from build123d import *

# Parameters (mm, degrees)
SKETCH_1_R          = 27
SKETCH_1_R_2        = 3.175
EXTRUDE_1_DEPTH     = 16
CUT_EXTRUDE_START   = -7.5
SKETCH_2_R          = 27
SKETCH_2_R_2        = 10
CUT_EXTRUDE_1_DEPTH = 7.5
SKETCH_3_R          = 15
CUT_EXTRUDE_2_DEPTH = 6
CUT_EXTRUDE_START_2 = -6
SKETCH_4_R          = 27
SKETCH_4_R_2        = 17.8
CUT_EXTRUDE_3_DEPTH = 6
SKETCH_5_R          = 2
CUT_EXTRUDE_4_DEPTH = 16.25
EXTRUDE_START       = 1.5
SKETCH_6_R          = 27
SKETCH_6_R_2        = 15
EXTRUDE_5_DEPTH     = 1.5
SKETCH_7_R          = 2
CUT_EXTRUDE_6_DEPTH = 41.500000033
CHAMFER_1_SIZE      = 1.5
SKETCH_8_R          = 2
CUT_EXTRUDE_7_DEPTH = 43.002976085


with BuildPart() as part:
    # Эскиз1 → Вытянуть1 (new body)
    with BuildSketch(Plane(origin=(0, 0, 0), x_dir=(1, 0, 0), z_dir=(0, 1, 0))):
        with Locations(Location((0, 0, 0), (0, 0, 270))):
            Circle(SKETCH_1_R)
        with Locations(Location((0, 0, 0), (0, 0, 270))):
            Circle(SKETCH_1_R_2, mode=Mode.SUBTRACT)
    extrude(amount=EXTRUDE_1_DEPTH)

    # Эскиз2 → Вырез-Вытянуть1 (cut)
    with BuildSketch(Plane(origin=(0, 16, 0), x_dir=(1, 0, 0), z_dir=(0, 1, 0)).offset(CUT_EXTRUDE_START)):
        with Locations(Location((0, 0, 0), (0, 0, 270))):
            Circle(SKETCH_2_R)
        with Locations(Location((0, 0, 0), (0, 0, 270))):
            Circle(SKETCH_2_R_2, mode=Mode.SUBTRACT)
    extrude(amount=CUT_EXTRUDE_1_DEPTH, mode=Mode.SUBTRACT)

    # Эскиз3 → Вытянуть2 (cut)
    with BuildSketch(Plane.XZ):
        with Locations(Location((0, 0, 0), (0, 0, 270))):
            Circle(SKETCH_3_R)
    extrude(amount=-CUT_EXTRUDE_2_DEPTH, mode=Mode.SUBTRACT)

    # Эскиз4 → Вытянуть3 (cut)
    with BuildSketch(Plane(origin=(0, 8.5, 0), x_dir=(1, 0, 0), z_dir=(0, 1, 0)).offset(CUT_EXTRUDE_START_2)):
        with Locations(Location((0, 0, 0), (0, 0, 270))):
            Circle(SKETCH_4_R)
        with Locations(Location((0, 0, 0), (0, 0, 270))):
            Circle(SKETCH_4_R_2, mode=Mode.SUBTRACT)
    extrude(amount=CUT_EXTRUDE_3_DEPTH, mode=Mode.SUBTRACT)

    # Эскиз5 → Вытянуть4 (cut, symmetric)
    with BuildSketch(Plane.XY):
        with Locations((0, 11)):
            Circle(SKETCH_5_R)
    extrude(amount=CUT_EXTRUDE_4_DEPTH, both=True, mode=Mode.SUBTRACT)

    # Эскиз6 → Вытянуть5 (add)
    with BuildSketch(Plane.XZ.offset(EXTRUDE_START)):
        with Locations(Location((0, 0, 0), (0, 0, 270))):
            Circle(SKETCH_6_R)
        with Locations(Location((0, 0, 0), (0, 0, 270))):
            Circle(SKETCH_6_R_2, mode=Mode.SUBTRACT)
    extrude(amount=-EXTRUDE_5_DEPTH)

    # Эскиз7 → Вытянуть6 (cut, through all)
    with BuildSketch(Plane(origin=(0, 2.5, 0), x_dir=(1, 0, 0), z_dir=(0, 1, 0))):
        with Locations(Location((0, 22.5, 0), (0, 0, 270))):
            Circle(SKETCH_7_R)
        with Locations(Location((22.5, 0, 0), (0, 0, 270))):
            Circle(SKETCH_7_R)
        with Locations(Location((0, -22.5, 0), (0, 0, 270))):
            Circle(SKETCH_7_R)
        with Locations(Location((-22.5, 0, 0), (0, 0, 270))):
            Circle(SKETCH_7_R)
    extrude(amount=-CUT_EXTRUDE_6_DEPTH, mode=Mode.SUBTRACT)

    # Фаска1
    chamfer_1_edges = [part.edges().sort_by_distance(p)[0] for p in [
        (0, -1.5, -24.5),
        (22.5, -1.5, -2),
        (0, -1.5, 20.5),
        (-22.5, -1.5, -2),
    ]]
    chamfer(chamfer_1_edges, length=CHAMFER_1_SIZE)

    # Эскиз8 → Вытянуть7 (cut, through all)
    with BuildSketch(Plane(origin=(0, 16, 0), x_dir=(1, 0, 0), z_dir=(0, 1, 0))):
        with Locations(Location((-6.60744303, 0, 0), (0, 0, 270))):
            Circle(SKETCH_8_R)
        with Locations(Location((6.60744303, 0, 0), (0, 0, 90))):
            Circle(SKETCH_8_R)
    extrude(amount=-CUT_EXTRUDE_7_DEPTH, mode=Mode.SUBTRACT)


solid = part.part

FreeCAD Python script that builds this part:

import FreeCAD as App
import Part
import Sketcher


def edges_at(feature, points):
    """Names of the edges that pass closest to the given points."""
    edges = feature.Shape.Edges
    near = lambda p: min(range(len(edges)), key=lambda i: edges[i].distToShape(Part.Vertex(*p))[0])
    return sorted({f"Edge{near(p) + 1}" for p in points})

doc = App.newDocument("Part")
body = doc.addObject("PartDesign::Body", "Body")

# Sketch on XZ plane
sketch1 = doc.addObject("Sketcher::SketchObject", "Sketch")
body.addObject(sketch1)
sketch1.AttachmentSupport = (doc.XZ_Plane, [""])
sketch1.MapMode = "FlatFace"
sketch1.addGeometry(Part.Circle(App.Vector(0, 0, 0), App.Vector(0, 0, 1), 27), False)
sketch1.addGeometry(Part.Circle(App.Vector(0, 0, 0), App.Vector(0, 0, 1), 3.175), False)
sketch1.addConstraint(Sketcher.Constraint("Coincident", 0, 3, -1, 1))
sketch1.addConstraint(Sketcher.Constraint("Coincident", 1, 3, -1, 1))
sketch1.addConstraint(Sketcher.Constraint("Diameter", 0, 54.0))
sketch1.addConstraint(Sketcher.Constraint("Diameter", 1, 6.35))
pad1 = doc.addObject("PartDesign::Pad", "Pad")
body.addObject(pad1)
pad1.Profile = sketch1
pad1.Length = 16
pad1.Reversed = True

# Sketch on XZ plane
sketch2 = doc.addObject("Sketcher::SketchObject", "Sketch001")
body.addObject(sketch2)
sketch2.AttachmentSupport = (doc.XZ_Plane, [""])
sketch2.MapMode = "FlatFace"
sketch2.AttachmentOffset = App.Placement(App.Vector(0, 0, -8.5), App.Rotation())
sketch2.addGeometry(Part.Circle(App.Vector(0, 0, 0), App.Vector(0, 0, 1), 27), False)
sketch2.addGeometry(Part.Circle(App.Vector(0, 0, 0), App.Vector(0, 0, 1), 10), False)
sketch2.addConstraint(Sketcher.Constraint("Coincident", 0, 3, -1, 1))
sketch2.addConstraint(Sketcher.Constraint("Coincident", 1, 3, -1, 1))
sketch2.addConstraint(Sketcher.Constraint("Diameter", 0, 54.0))
sketch2.addConstraint(Sketcher.Constraint("Diameter", 1, 20.0))
pocket1 = doc.addObject("PartDesign::Pocket", "Pocket")
body.addObject(pocket1)
pocket1.Profile = sketch2
pocket1.Length = 7.5

# Sketch on XZ plane
sketch3 = doc.addObject("Sketcher::SketchObject", "Sketch002")
body.addObject(sketch3)
sketch3.AttachmentSupport = (doc.XZ_Plane, [""])
sketch3.MapMode = "FlatFace"
sketch3.addGeometry(Part.Circle(App.Vector(0, 0, 0), App.Vector(0, 0, 1), 15), False)
sketch3.addConstraint(Sketcher.Constraint("Coincident", 0, 3, -1, 1))
sketch3.addConstraint(Sketcher.Constraint("Diameter", 0, 30.0))
pocket2 = doc.addObject("PartDesign::Pocket", "Pocket001")
body.addObject(pocket2)
pocket2.Profile = sketch3
pocket2.Length = 6

# Sketch on XZ plane
sketch4 = doc.addObject("Sketcher::SketchObject", "Sketch003")
body.addObject(sketch4)
sketch4.AttachmentSupport = (doc.XZ_Plane, [""])
sketch4.MapMode = "FlatFace"
sketch4.AttachmentOffset = App.Placement(App.Vector(0, 0, -2.5), App.Rotation())
sketch4.addGeometry(Part.Circle(App.Vector(0, 0, 0), App.Vector(0, 0, 1), 27), False)
sketch4.addGeometry(Part.Circle(App.Vector(0, 0, 0), App.Vector(0, 0, 1), 17.8), False)
sketch4.addConstraint(Sketcher.Constraint("Coincident", 0, 3, -1, 1))
sketch4.addConstraint(Sketcher.Constraint("Coincident", 1, 3, -1, 1))
sketch4.addConstraint(Sketcher.Constraint("Diameter", 0, 54.0))
sketch4.addConstraint(Sketcher.Constraint("Diameter", 1, 35.6))
pocket3 = doc.addObject("PartDesign::Pocket", "Pocket002")
body.addObject(pocket3)
pocket3.Profile = sketch4
pocket3.Length = 6

# Sketch on XY plane
sketch5 = doc.addObject("Sketcher::SketchObject", "Sketch004")
body.addObject(sketch5)
sketch5.AttachmentSupport = (doc.XY_Plane, [""])
sketch5.MapMode = "FlatFace"
sketch5.addGeometry(Part.Circle(App.Vector(0, 11, 0), App.Vector(0, 0, 1), 2), False)
sketch5.addConstraint(Sketcher.Constraint("PointOnObject", 0, 3, -2))
sketch5.addConstraint(Sketcher.Constraint("Diameter", 0, 4.0))
sketch5.addConstraint(Sketcher.Constraint("DistanceY", -1, 1, 0, 3, 11.0))
pocket4 = doc.addObject("PartDesign::Pocket", "Pocket003")
body.addObject(pocket4)
pocket4.Profile = sketch5
pocket4.Length = 32.5
pocket4.Midplane = True

# Sketch on XZ plane
sketch6 = doc.addObject("Sketcher::SketchObject", "Sketch005")
body.addObject(sketch6)
sketch6.AttachmentSupport = (doc.XZ_Plane, [""])
sketch6.MapMode = "FlatFace"
sketch6.AttachmentOffset = App.Placement(App.Vector(0, 0, 1.5), App.Rotation())
sketch6.addGeometry(Part.Circle(App.Vector(0, 0, 0), App.Vector(0, 0, 1), 27), False)
sketch6.addGeometry(Part.Circle(App.Vector(0, 0, 0), App.Vector(0, 0, 1), 15), False)
sketch6.addConstraint(Sketcher.Constraint("Coincident", 0, 3, -1, 1))
sketch6.addConstraint(Sketcher.Constraint("Coincident", 1, 3, -1, 1))
sketch6.addConstraint(Sketcher.Constraint("Diameter", 0, 54.0))
sketch6.addConstraint(Sketcher.Constraint("Diameter", 1, 30.0))
pad2 = doc.addObject("PartDesign::Pad", "Pad001")
body.addObject(pad2)
pad2.Profile = sketch6
pad2.Length = 1.5
pad2.Reversed = True

# Sketch on XZ plane
sketch7 = doc.addObject("Sketcher::SketchObject", "Sketch006")
body.addObject(sketch7)
sketch7.AttachmentSupport = (doc.XZ_Plane, [""])
sketch7.MapMode = "FlatFace"
sketch7.AttachmentOffset = App.Placement(App.Vector(0, 0, -2.5), App.Rotation())
sketch7.addGeometry(Part.Circle(App.Vector(0, -22.5, 0), App.Vector(0, 0, 1), 2), False)
sketch7.addGeometry(Part.Circle(App.Vector(22.5, 0, 0), App.Vector(0, 0, 1), 2), False)
sketch7.addGeometry(Part.Circle(App.Vector(0, 22.5, 0), App.Vector(0, 0, 1), 2), False)
sketch7.addGeometry(Part.Circle(App.Vector(-22.5, 0, 0), App.Vector(0, 0, 1), 2), False)
sketch7.addConstraint(Sketcher.Constraint("Equal", 0, 1))
sketch7.addConstraint(Sketcher.Constraint("Equal", 1, 2))
sketch7.addConstraint(Sketcher.Constraint("Equal", 2, 3))
sketch7.addConstraint(Sketcher.Constraint("Symmetric", 0, 3, 2, 3, -1, 1))
sketch7.addConstraint(Sketcher.Constraint("Symmetric", 1, 3, 3, 3, -1, 1))
sketch7.addConstraint(Sketcher.Constraint("PointOnObject", 0, 3, -2))
sketch7.addConstraint(Sketcher.Constraint("PointOnObject", 1, 3, -1))
sketch7.addConstraint(Sketcher.Constraint("Diameter", 0, 4.0))
sketch7.addConstraint(Sketcher.Constraint("DistanceY", 0, 3, 2, 3, 45.0))
sketch7.addConstraint(Sketcher.Constraint("DistanceX", 3, 3, 1, 3, 45.0))
pocket5 = doc.addObject("PartDesign::Pocket", "Pocket004")
body.addObject(pocket5)
pocket5.Profile = sketch7
pocket5.Type = "ThroughAll"
pocket5.Reversed = True
doc.recompute()

chamfer = doc.addObject("PartDesign::Chamfer", "Chamfer")
body.addObject(chamfer)
chamfer.Base = (pocket5, edges_at(pocket5, [
    (0, -1.5, -24.5),
    (22.5, -1.5, -2),
    (0, -1.5, 20.5),
    (-22.5, -1.5, -2),
]))
chamfer.Size = 1.5

# Sketch on XZ plane
sketch8 = doc.addObject("Sketcher::SketchObject", "Sketch007")
body.addObject(sketch8)
sketch8.AttachmentSupport = (doc.XZ_Plane, [""])
sketch8.MapMode = "FlatFace"
sketch8.AttachmentOffset = App.Placement(App.Vector(0, 0, -16), App.Rotation())
sketch8.addGeometry(Part.Circle(App.Vector(-6.607443, 0, 0), App.Vector(0, 0, 1), 2), False)
sketch8.addGeometry(Part.Circle(App.Vector(6.607443, 0, 0), App.Vector(0, 0, 1), 2), False)
sketch8.addConstraint(Sketcher.Constraint("Equal", 0, 1))
sketch8.addConstraint(Sketcher.Constraint("Symmetric", 0, 3, 1, 3, -1, 1))
sketch8.addConstraint(Sketcher.Constraint("PointOnObject", 0, 3, -1))
sketch8.addConstraint(Sketcher.Constraint("Diameter", 0, 4.0))
sketch8.addConstraint(Sketcher.Constraint("DistanceX", 0, 3, -1, 1, 6.607443))
pocket6 = doc.addObject("PartDesign::Pocket", "Pocket005")
body.addObject(pocket6)
pocket6.Profile = sketch8
pocket6.Type = "ThroughAll"
pocket6.Reversed = True

doc.recompute()
